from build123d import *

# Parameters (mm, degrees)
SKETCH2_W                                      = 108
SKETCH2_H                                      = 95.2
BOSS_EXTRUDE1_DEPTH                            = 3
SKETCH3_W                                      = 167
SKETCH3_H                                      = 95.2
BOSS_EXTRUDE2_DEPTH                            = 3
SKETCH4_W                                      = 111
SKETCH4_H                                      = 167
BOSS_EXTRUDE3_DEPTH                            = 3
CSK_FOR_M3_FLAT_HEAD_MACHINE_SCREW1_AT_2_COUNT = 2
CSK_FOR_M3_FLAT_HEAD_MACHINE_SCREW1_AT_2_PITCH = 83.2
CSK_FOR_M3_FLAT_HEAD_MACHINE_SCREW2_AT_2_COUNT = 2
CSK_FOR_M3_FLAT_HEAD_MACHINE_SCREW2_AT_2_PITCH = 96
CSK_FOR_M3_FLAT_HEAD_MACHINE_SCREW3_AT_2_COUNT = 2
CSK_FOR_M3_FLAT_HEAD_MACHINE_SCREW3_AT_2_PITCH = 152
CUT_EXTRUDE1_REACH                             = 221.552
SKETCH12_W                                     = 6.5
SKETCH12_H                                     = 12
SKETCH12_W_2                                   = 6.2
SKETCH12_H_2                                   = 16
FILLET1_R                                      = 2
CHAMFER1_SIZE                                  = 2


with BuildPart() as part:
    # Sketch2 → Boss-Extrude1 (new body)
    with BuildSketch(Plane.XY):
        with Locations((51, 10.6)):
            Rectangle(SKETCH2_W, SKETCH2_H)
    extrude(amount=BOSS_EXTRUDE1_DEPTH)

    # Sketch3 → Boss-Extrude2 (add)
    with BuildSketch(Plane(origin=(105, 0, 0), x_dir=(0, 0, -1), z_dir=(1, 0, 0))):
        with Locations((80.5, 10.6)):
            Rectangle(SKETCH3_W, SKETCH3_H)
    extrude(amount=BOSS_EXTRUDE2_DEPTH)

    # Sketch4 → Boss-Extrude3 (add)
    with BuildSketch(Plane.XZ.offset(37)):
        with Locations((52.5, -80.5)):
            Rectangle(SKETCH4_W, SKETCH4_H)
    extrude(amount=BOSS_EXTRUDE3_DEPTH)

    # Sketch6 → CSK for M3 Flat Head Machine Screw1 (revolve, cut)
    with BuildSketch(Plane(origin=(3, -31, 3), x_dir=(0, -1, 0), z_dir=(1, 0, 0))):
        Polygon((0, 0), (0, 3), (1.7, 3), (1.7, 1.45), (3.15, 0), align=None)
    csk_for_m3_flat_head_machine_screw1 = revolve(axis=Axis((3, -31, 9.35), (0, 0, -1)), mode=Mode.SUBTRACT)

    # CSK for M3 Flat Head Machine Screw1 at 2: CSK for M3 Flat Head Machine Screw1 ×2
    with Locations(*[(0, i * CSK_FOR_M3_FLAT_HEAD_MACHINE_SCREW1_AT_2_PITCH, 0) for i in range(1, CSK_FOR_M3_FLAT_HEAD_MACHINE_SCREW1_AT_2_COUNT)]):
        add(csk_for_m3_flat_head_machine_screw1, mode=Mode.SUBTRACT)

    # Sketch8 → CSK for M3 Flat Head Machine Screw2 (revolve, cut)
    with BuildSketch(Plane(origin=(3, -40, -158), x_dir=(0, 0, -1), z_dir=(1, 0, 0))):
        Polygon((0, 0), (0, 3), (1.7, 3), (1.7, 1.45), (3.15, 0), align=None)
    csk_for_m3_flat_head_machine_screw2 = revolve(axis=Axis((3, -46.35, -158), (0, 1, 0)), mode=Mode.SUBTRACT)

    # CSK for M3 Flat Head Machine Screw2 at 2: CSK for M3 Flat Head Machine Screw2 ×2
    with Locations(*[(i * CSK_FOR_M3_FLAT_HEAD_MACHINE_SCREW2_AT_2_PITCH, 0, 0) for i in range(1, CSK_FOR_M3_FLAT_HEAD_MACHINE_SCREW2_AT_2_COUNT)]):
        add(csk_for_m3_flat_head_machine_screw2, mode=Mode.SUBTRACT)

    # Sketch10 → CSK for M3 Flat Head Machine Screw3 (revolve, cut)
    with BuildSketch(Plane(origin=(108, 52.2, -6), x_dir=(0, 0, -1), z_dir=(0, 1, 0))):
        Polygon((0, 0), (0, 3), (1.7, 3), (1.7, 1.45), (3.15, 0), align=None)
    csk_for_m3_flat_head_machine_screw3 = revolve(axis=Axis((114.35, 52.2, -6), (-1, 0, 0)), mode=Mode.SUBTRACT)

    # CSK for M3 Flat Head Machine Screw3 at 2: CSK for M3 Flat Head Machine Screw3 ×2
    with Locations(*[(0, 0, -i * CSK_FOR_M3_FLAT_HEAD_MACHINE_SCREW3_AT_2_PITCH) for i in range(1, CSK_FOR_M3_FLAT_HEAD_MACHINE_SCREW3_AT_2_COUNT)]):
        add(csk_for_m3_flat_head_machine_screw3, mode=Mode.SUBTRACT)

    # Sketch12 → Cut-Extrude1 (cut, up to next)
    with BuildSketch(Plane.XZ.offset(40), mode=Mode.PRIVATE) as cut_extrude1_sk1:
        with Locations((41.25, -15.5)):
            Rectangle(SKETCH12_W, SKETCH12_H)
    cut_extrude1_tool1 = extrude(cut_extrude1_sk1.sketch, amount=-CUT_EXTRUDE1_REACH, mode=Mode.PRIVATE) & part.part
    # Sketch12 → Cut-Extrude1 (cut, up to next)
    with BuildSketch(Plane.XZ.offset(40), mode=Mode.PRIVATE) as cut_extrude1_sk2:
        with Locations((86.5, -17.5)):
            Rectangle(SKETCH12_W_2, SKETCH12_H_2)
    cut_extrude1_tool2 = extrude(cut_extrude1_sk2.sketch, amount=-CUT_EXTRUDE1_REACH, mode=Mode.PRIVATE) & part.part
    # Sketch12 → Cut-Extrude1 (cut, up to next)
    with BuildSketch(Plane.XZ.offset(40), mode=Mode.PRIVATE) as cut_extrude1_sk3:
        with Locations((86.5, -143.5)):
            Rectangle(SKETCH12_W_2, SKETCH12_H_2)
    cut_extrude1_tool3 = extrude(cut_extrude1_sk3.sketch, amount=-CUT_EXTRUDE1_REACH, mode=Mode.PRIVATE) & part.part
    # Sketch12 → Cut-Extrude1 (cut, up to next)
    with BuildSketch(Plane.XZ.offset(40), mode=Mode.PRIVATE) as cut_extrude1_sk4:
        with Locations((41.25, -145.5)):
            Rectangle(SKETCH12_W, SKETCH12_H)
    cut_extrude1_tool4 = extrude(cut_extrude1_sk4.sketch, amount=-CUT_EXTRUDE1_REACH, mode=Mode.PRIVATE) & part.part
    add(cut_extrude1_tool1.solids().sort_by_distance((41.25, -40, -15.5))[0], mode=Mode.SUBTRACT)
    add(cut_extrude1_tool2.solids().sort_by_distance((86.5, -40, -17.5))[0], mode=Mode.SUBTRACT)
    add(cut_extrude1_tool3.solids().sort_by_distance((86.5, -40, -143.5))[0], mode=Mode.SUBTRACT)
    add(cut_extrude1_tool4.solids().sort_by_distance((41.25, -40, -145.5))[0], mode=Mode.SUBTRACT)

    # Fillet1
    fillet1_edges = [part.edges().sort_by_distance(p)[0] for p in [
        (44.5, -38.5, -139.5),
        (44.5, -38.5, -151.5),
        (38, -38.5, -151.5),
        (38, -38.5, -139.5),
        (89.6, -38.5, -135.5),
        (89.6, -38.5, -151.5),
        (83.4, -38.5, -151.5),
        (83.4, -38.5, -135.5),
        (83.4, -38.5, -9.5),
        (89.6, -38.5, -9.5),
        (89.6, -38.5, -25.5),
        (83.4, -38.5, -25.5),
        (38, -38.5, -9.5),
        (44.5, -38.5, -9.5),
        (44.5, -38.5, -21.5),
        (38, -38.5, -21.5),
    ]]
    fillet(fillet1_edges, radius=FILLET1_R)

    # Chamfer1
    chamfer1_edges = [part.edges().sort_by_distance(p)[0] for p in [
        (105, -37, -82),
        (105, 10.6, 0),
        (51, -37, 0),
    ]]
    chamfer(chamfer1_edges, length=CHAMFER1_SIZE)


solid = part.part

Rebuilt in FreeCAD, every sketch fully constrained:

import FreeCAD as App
import Part
import Sketcher
from FreeCAD import Vector
Q = App.Units.Quantity


def edges_at(feature, points):
    """Names of the edges that pass closest to the given points."""
    edges = feature.Shape.Edges
    near = lambda p: min(range(len(edges)), key=lambda i: edges[i].distToShape(Part.Vertex(*p))[0])
    return sorted({f"Edge{near(p) + 1}" for p in points})


def add_polygon(sketch, points):
    """Adds a closed chain of lines whose ends are joined by coincident constraints."""
    first, n = sketch.GeometryCount, len(points)
    for a, b in zip(points, points[1:] + points[:1]):
        sketch.addGeometry(Part.LineSegment(App.Vector(*a, 0), App.Vector(*b, 0)), False)
    for i in range(n):
        sketch.addConstraint(Sketcher.Constraint("Coincident", first + i, 2, first + (i + 1) % n, 1))

doc = App.newDocument("Part")
body = doc.addObject("PartDesign::Body", "Body")

# Sketch on XY plane
sketch1 = doc.addObject("Sketcher::SketchObject", "Sketch")
body.addObject(sketch1)
sketch1.AttachmentSupport = (doc.XY_Plane, [""])
sketch1.MapMode = "FlatFace"
add_polygon(sketch1, [(-3, 58), (-3, -37), (105, -37), (105, 58)])  # lines 0-3
sketch1.addConstraint([
    Sketcher.Constraint("Vertical", 0),
    Sketcher.Constraint("Horizontal", 1),
    Sketcher.Constraint("Vertical", 2),
    Sketcher.Constraint("Horizontal", 3),
    Sketcher.Constraint("DistanceX", 1, 1, 1, 2, Q("108 mm")),
    Sketcher.Constraint("DistanceY", 0, 2, 0, 1, Q("95.2 mm")),
    Sketcher.Constraint("DistanceX", 0, 2, -1, 1, Q("3 mm")),
    Sketcher.Constraint("DistanceY", 0, 2, -1, 1, Q("37 mm")),
])
pad1 = doc.addObject("PartDesign::Pad", "Pad")
body.addObject(pad1)
pad1.Profile = sketch1
pad1.Length = 3

# Sketch on YZ plane
sketch2 = doc.addObject("Sketcher::SketchObject", "Sketch001")
body.addObject(sketch2)
sketch2.AttachmentSupport = (doc.YZ_Plane, [""])
sketch2.MapMode = "FlatFace"
sketch2.AttachmentOffset = App.Placement(Vector(0, 0, 105), App.Rotation())
add_polygon(sketch2, [(58, 3), (-37, 3), (-37, -164), (58, -164)])  # lines 0-3
sketch2.addConstraint([
    Sketcher.Constraint("Horizontal", 0),
    Sketcher.Constraint("Vertical", 1),
    Sketcher.Constraint("Horizontal", 2),
    Sketcher.Constraint("Vertical", 3),
    Sketcher.Constraint("DistanceY", 1, 2, 1, 1, Q("167 mm")),
    Sketcher.Constraint("DistanceX", 0, 2, 0, 1, Q("95.2 mm")),
    Sketcher.Constraint("DistanceX", 0, 2, -1, 1, Q("37 mm")),
    Sketcher.Constraint("DistanceY", -1, 1, 0, 2, Q("3 mm")),
])
pad2 = doc.addObject("PartDesign::Pad", "Pad001")
body.addObject(pad2)
pad2.Profile = sketch2
pad2.Length = 3

# Sketch on XZ plane
sketch3 = doc.addObject("Sketcher::SketchObject", "Sketch002")
body.addObject(sketch3)
sketch3.AttachmentSupport = (doc.XZ_Plane, [""])
sketch3.MapMode = "FlatFace"
sketch3.AttachmentOffset = App.Placement(Vector(0, 0, 37), App.Rotation())
add_polygon(sketch3, [(-3, 3), (-3, -164), (108, -164), (108, 3)])  # lines 0-3
sketch3.addConstraint([
    Sketcher.Constraint("Vertical", 0),
    Sketcher.Constraint("Horizontal", 1),
    Sketcher.Constraint("Vertical", 2),
    Sketcher.Constraint("Horizontal", 3),
    Sketcher.Constraint("DistanceX", 1, 1, 1, 2, Q("111 mm")),
    Sketcher.Constraint("DistanceY", 0, 2, 0, 1, Q("167 mm")),
    Sketcher.Constraint("DistanceX", 0, 2, -1, 1, Q("3 mm")),
    Sketcher.Constraint("DistanceY", 0, 2, -1, 1, Q("164 mm")),
])
pad3 = doc.addObject("PartDesign::Pad", "Pad002")
body.addObject(pad3)
pad3.Profile = sketch3
pad3.Length = 3

# Sketch on YZ plane
sketch4 = doc.addObject("Sketcher::SketchObject", "Sketch003")
body.addObject(sketch4)
sketch4.AttachmentSupport = (doc.YZ_Plane, [""])
sketch4.MapMode = "FlatFace"
sketch4.AttachmentOffset = App.Placement(Vector(0, 0, 3), App.Rotation())
add_polygon(sketch4, [(-31, 0), (-31, 3), (-34.1, 3), (-32.7, 1.6), (-32.7, 0)])  # lines 0-4
sketch4.addGeometry(Part.LineSegment(Vector(-31, 3, 0), Vector(-31, 0, 0)), True)  # axis
sketch4.addConstraint([
    Sketcher.Constraint("Vertical", 0),
    Sketcher.Constraint("Horizontal", 1),
    Sketcher.Constraint("Vertical", 3),
    Sketcher.Constraint("Horizontal", 4),
    Sketcher.Constraint("Vertical", 5),
    Sketcher.Constraint("Coincident", 5, 1, 0, 2),
    Sketcher.Constraint("PointOnObject", 3, 2, -1),
    Sketcher.Constraint("PointOnObject", 5, 2, -1),
    Sketcher.Constraint("DistanceY", 0, 1, 0, 2, Q("3 mm")),
    Sketcher.Constraint("Angle", 2, Q("-45 deg")),
    Sketcher.Constraint("DistanceX", 4, 1, 4, 2, Q("1.7 mm")),
    Sketcher.Constraint("DistanceX", 0, 2, -1, 1, Q("31 mm")),
    Sketcher.Constraint("DistanceX", 1, 2, 1, 1, Q("3.15 mm")),
])
groove = doc.addObject("PartDesign::Groove", "Groove")
body.addObject(groove)
groove.Profile = sketch4
groove.ReferenceAxis = (sketch4, ["Axis0"])
groove.Angle = 360
doc.recompute()

linearpattern = doc.addObject("PartDesign::LinearPattern", "LinearPattern")
body.addObject(linearpattern)
linearpattern.Originals = [groove]
linearpattern.Direction = (doc.Y_Axis, [""])
linearpattern.Mode = "offset"
linearpattern.Offset = 83.2
linearpattern.Occurrences = 2
body.Tip = linearpattern

# Sketch on YZ plane
sketch5 = doc.addObject("Sketcher::SketchObject", "Sketch004")
body.addObject(sketch5)
sketch5.AttachmentSupport = (doc.YZ_Plane, [""])
sketch5.MapMode = "FlatFace"
sketch5.AttachmentOffset = App.Placement(Vector(0, 0, 3), App.Rotation())
add_polygon(sketch5, [(-37, -158), (-40, -158), (-40, -161.2), (-38.5, -159.7), (-37, -159.7)])  # lines 0-4
sketch5.addGeometry(Part.LineSegment(Vector(-40, -158, 0), Vector(-37, -158, 0)), True)  # axis
sketch5.addConstraint([
    Sketcher.Constraint("Horizontal", 0),
    Sketcher.Constraint("Vertical", 1),
    Sketcher.Constraint("Horizontal", 3),
    Sketcher.Constraint("Vertical", 4),
    Sketcher.Constraint("Horizontal", 5),
    Sketcher.Constraint("Coincident", 5, 1, 0, 2),
    Sketcher.Constraint("Vertical", 3, 2, 5, 2),
    Sketcher.Constraint("DistanceX", 0, 2, 0, 1, Q("3 mm")),
    Sketcher.Constraint("Angle", 2, Q("45 deg")),
    Sketcher.Constraint("DistanceY", 4, 1, 4, 2, Q("1.7 mm")),
    Sketcher.Constraint("DistanceX", 0, 2, -1, 1, Q("40 mm")),
    Sketcher.Constraint("DistanceY", 0, 2, -1, 1, Q("158 mm")),
    Sketcher.Constraint("DistanceX", 3, 1, 3, 2, Q("1.55 mm")),
])
groove2 = doc.addObject("PartDesign::Groove", "Groove001")
body.addObject(groove2)
groove2.Profile = sketch5
groove2.ReferenceAxis = (sketch5, ["Axis0"])
groove2.Angle = 360
doc.recompute()

linearpattern2 = doc.addObject("PartDesign::LinearPattern", "LinearPattern001")
body.addObject(linearpattern2)
linearpattern2.Originals = [groove2]
linearpattern2.Direction = (doc.X_Axis, [""])
linearpattern2.Mode = "offset"
linearpattern2.Offset = 96
linearpattern2.Occurrences = 2
body.Tip = linearpattern2

# Sketch on XZ plane
sketch6 = doc.addObject("Sketcher::SketchObject", "Sketch005")
body.addObject(sketch6)
sketch6.AttachmentSupport = (doc.XZ_Plane, [""])
sketch6.MapMode = "FlatFace"
sketch6.AttachmentOffset = App.Placement(Vector(0, 0, -52.2), App.Rotation())
add_polygon(sketch6, [(105, -6), (108, -6), (108, -9.2), (106.5, -7.7), (105, -7.7)])  # lines 0-4
sketch6.addGeometry(Part.LineSegment(Vector(108, -6, 0), Vector(105, -6, 0)), True)  # axis
sketch6.addConstraint([
    Sketcher.Constraint("Horizontal", 0),
    Sketcher.Constraint("Vertical", 1),
    Sketcher.Constraint("Horizontal", 3),
    Sketcher.Constraint("Vertical", 4),
    Sketcher.Constraint("Horizontal", 5),
    Sketcher.Constraint("Coincident", 5, 1, 0, 2),
    Sketcher.Constraint("Vertical", 3, 2, 5, 2),
    Sketcher.Constraint("DistanceX", 0, 1, 0, 2, Q("3 mm")),
    Sketcher.Constraint("Angle", 2, Q("135 deg")),
    Sketcher.Constraint("DistanceY", 4, 1, 4, 2, Q("1.7 mm")),
    Sketcher.Constraint("DistanceX", -1, 1, 0, 2, Q("108 mm")),
    Sketcher.Constraint("DistanceY", 0, 2, -1, 1, Q("6 mm")),
    Sketcher.Constraint("DistanceX", 3, 2, 3, 1, Q("1.55 mm")),
])
groove3 = doc.addObject("PartDesign::Groove", "Groove002")
body.addObject(groove3)
groove3.Profile = sketch6
groove3.ReferenceAxis = (sketch6, ["Axis0"])
groove3.Angle = 360
doc.recompute()

linearpattern3 = doc.addObject("PartDesign::LinearPattern", "LinearPattern002")
body.addObject(linearpattern3)
linearpattern3.Originals = [groove3]
linearpattern3.Direction = (doc.Z_Axis, [""])
linearpattern3.Mode = "offset"
linearpattern3.Offset = 152
linearpattern3.Occurrences = 2
linearpattern3.Reversed = True
body.Tip = linearpattern3

# Sketch on XZ plane
sketch7 = doc.addObject("Sketcher::SketchObject", "Sketch006")
body.addObject(sketch7)
sketch7.AttachmentSupport = (doc.XZ_Plane, [""])
sketch7.MapMode = "FlatFace"
sketch7.AttachmentOffset = App.Placement(Vector(0, 0, 40), App.Rotation())
add_polygon(sketch7, [(38, -10), (38, -22), (44, -22), (44, -10)])  # lines 0-3
sketch7.addConstraint([
    Sketcher.Constraint("Vertical", 0),
    Sketcher.Constraint("Horizontal", 1),
    Sketcher.Constraint("Vertical", 2),
    Sketcher.Constraint("Horizontal", 3),
    Sketcher.Constraint("DistanceY", 0, 2, 0, 1, Q("12 mm")),
    Sketcher.Constraint("DistanceX", 1, 1, 1, 2, Q("6.5 mm")),
    Sketcher.Constraint("DistanceX", -1, 1, 0, 2, Q("38 mm")),
    Sketcher.Constraint("DistanceY", 0, 2, -1, 1, Q("21.5 mm")),
])
pocket1 = doc.addObject("PartDesign::Pocket", "Pocket")
body.addObject(pocket1)
pocket1.Profile = sketch7
pocket1.Type = "UpToFirst"

# Sketch on XZ plane
sketch8 = doc.addObject("Sketcher::SketchObject", "Sketch007")
body.addObject(sketch8)
sketch8.AttachmentSupport = (doc.XZ_Plane, [""])
sketch8.MapMode = "FlatFace"
sketch8.AttachmentOffset = App.Placement(Vector(0, 0, 40), App.Rotation())
add_polygon(sketch8, [(83, -10), (83, -26), (90, -26), (90, -10)])  # lines 0-3
sketch8.addConstraint([
    Sketcher.Constraint("Vertical", 0),
    Sketcher.Constraint("Horizontal", 1),
    Sketcher.Constraint("Vertical", 2),
    Sketcher.Constraint("Horizontal", 3),
    Sketcher.Constraint("DistanceY", 0, 2, 0, 1, Q("16 mm")),
    Sketcher.Constraint("DistanceX", 1, 1, 1, 2, Q("6.2 mm")),
    Sketcher.Constraint("DistanceX", -1, 1, 0, 2, Q("83.4 mm")),
    Sketcher.Constraint("DistanceY", 0, 2, -1, 1, Q("25.5 mm")),
])
pocket2 = doc.addObject("PartDesign::Pocket", "Pocket001")
body.addObject(pocket2)
pocket2.Profile = sketch8
pocket2.Type = "UpToFirst"

# Sketch on XZ plane
sketch9 = doc.addObject("Sketcher::SketchObject", "Sketch008")
body.addObject(sketch9)
sketch9.AttachmentSupport = (doc.XZ_Plane, [""])
sketch9.MapMode = "FlatFace"
sketch9.AttachmentOffset = App.Placement(Vector(0, 0, 40), App.Rotation())
add_polygon(sketch9, [(83, -136), (83, -152), (90, -152), (90, -136)])  # lines 0-3
sketch9.addConstraint([
    Sketcher.Constraint("Vertical", 0),
    Sketcher.Constraint("Horizontal", 1),
    Sketcher.Constraint("Vertical", 2),
    Sketcher.Constraint("Horizontal", 3),
    Sketcher.Constraint("DistanceY", 0, 2, 0, 1, Q("16 mm")),
    Sketcher.Constraint("DistanceX", 1, 1, 1, 2, Q("6.2 mm")),
    Sketcher.Constraint("DistanceX", -1, 1, 0, 2, Q("83.4 mm")),
    Sketcher.Constraint("DistanceY", 0, 2, -1, 1, Q("151.5 mm")),
])
pocket3 = doc.addObject("PartDesign::Pocket", "Pocket002")
body.addObject(pocket3)
pocket3.Profile = sketch9
pocket3.Type = "UpToFirst"

# Sketch on XZ plane
sketch10 = doc.addObject("Sketcher::SketchObject", "Sketch009")
body.addObject(sketch10)
sketch10.AttachmentSupport = (doc.XZ_Plane, [""])
sketch10.MapMode = "FlatFace"
sketch10.AttachmentOffset = App.Placement(Vector(0, 0, 40), App.Rotation())
add_polygon(sketch10, [(38, -140), (38, -152), (44, -152), (44, -140)])  # lines 0-3
sketch10.addConstraint([
    Sketcher.Constraint("Vertical", 0),
    Sketcher.Constraint("Horizontal", 1),
    Sketcher.Constraint("Vertical", 2),
    Sketcher.Constraint("Horizontal", 3),
    Sketcher.Constraint("DistanceY", 0, 2, 0, 1, Q("12 mm")),
    Sketcher.Constraint("DistanceX", 1, 1, 1, 2, Q("6.5 mm")),
    Sketcher.Constraint("DistanceX", -1, 1, 0, 2, Q("38 mm")),
    Sketcher.Constraint("DistanceY", 0, 2, -1, 1, Q("151.5 mm")),
])
pocket4 = doc.addObject("PartDesign::Pocket", "Pocket003")
body.addObject(pocket4)
pocket4.Profile = sketch10
pocket4.Type = "UpToFirst"
doc.recompute()

fillet = doc.addObject("PartDesign::Fillet", "Fillet")
body.addObject(fillet)
fillet.Base = (pocket4, edges_at(pocket4, [
    (44.5, -38.5, -139.5),
    (44.5, -38.5, -151.5),
    (38, -38.5, -151.5),
    (38, -38.5, -139.5),
    (89.6, -38.5, -135.5),
    (89.6, -38.5, -151.5),
    (83.4, -38.5, -151.5),
    (83.4, -38.5, -135.5),
    (83.4, -38.5, -9.5),
    (89.6, -38.5, -9.5),
    (89.6, -38.5, -25.5),
    (83.4, -38.5, -25.5),
    (38, -38.5, -9.5),
    (44.5, -38.5, -9.5),
    (44.5, -38.5, -21.5),
    (38, -38.5, -21.5),
]))
fillet.Radius = 2
doc.recompute()

chamfer = doc.addObject("PartDesign::Chamfer", "Chamfer")
body.addObject(chamfer)
chamfer.Base = (fillet, edges_at(fillet, [(105, -37, -82), (105, 10.6, 0), (51, -37, 0)]))
chamfer.Size = 2

doc.recompute()
